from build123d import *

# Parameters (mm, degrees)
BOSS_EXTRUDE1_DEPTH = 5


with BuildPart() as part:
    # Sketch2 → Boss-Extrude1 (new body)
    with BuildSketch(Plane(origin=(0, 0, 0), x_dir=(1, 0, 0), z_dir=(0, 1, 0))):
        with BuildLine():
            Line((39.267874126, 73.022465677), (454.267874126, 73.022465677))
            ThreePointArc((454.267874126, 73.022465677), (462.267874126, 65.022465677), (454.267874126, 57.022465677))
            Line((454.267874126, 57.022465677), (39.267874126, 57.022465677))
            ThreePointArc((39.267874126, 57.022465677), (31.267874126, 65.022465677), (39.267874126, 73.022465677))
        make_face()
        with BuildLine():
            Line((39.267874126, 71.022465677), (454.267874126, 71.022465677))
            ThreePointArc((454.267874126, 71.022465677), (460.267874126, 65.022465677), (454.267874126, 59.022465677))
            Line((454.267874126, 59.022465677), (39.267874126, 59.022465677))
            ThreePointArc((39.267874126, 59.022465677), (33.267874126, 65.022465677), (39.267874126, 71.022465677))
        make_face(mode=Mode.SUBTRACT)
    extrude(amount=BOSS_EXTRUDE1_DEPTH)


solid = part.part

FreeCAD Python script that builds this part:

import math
import FreeCAD as App
import Part
import Sketcher
Q = App.Units.Quantity

doc = App.newDocument("Part")
params = doc.addObject("Spreadsheet::Sheet", "Params")
for row, (alias, value) in enumerate([
    ("sketch1_radius", "8 mm"),
    ("sketch1_radius2", "6 mm"),
    ("sketch1_width", "415 mm"),
    ("pad1_length", "5 mm"),
], start=1):
    params.set(f"A{row}", alias)
    params.set(f"B{row}", "=" + value)
    params.setAlias(f"B{row}", alias)

body = doc.addObject("PartDesign::Body", "Body")

# Sketch on XZ plane
sketch1 = body.newObject("Sketcher::SketchObject", "Sketch")
sketch1.AttachmentSupport = (doc.getObject("XZ_Plane"), [""])
sketch1.MapMode = "FlatFace"
sketch1.addGeometry(Part.LineSegment(App.Vector(454, -73, 0), App.Vector(39, -73, 0)), False)
sketch1.addGeometry(Part.ArcOfCircle(Part.Circle(App.Vector(39, -65, 0), App.Vector(0, 0, 1), 8), math.radians(90), math.radians(270)), False)
sketch1.addGeometry(Part.LineSegment(App.Vector(39, -57, 0), App.Vector(454, -57, 0)), False)
sketch1.addGeometry(Part.ArcOfCircle(Part.Circle(App.Vector(454, -65, 0), App.Vector(0, 0, 1), 8), math.radians(-90), math.radians(90)), False)
sketch1.addGeometry(Part.LineSegment(App.Vector(39, -71, 0), App.Vector(454, -71, 0)), False)
sketch1.addGeometry(Part.ArcOfCircle(Part.Circle(App.Vector(454, -65, 0), App.Vector(0, 0, 1), 6), math.radians(-90), math.radians(90)), False)
sketch1.addGeometry(Part.LineSegment(App.Vector(454, -59, 0), App.Vector(39, -59, 0)), False)
sketch1.addGeometry(Part.ArcOfCircle(Part.Circle(App.Vector(39, -65, 0), App.Vector(0, 0, 1), 6), math.radians(90), math.radians(270)), False)
sketch1.addConstraint(Sketcher.Constraint("Tangent", 0, 2, 1, 2))
sketch1.addConstraint(Sketcher.Constraint("Tangent", 1, 1, 2, 1))
sketch1.addConstraint(Sketcher.Constraint("Tangent", 2, 2, 3, 2))
sketch1.addConstraint(Sketcher.Constraint("Tangent", 3, 1, 0, 1))
sketch1.addConstraint(Sketcher.Constraint("Tangent", 4, 2, 5, 1))
sketch1.addConstraint(Sketcher.Constraint("Tangent", 5, 2, 6, 1))
sketch1.addConstraint(Sketcher.Constraint("Tangent", 6, 2, 7, 1))
sketch1.addConstraint(Sketcher.Constraint("Tangent", 7, 2, 4, 1))
sketch1.addConstraint(Sketcher.Constraint("Horizontal", 0))
sketch1.addConstraint(Sketcher.Constraint("Horizontal", 2))
sketch1.addConstraint(Sketcher.Constraint("Horizontal", 4))
sketch1.addConstraint(Sketcher.Constraint("Horizontal", 6))
sketch1.addConstraint(Sketcher.Constraint("Coincident", 5, 3, 3, 3))
sketch1.addConstraint(Sketcher.Constraint("Vertical", 7, 3, 0, 2))
sketch1.addConstraint(Sketcher.Constraint("Radius", 1, Q("8 mm")))
sketch1.addConstraint(Sketcher.Constraint("Radius", 5, Q("6 mm")))
sketch1.addConstraint(Sketcher.Constraint("DistanceX", 0, 2, 0, 1, Q("415 mm")))
sketch1.addConstraint(Sketcher.Constraint("DistanceX", -1, 1, 1, 3, Q("39.267874 mm")))
sketch1.addConstraint(Sketcher.Constraint("DistanceY", 1, 3, -1, 1, Q("65.022466 mm")))
sketch1.setExpression("Constraints[14]", "Params.sketch1_radius")
sketch1.setExpression("Constraints[15]", "Params.sketch1_radius2")
sketch1.setExpression("Constraints[16]", "Params.sketch1_width")
pad1 = body.newObject("PartDesign::Pad", "Pad")
pad1.Profile = sketch1
pad1.setExpression("Length", "Params.pad1_length")
pad1.Reversed = True

doc.recompute()
